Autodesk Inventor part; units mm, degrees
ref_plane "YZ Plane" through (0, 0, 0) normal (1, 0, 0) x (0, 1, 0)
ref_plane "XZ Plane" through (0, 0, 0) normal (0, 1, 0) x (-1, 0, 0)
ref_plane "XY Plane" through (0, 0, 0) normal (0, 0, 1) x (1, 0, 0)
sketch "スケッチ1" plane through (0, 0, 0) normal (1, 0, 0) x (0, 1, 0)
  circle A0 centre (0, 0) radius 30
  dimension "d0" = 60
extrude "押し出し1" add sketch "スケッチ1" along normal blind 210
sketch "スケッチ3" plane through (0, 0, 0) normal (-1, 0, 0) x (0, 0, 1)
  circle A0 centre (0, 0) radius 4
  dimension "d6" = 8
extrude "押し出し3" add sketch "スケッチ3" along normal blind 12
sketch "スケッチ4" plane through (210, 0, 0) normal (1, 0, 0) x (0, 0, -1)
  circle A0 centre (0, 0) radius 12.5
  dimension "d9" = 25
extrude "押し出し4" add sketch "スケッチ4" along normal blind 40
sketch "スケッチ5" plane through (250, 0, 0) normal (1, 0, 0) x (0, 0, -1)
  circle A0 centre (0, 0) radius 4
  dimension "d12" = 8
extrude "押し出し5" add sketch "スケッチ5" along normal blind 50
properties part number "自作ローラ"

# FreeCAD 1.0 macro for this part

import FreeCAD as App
import Part
import Sketcher

V = App.Vector
Q = App.Units.Quantity

doc = App.newDocument("Part")
body = doc.addObject("PartDesign::Body", "Body")

# Sketch on YZ plane
sketch1 = doc.addObject("Sketcher::SketchObject", "Sketch")
body.addObject(sketch1)
sketch1.AttachmentSupport = (doc.YZ_Plane, [""])
sketch1.MapMode = "FlatFace"
sketch1.addGeometry(Part.Circle(V(0, 0, 0), V(0, 0, 1), 30), False)
sketch1.addConstraint([
    Sketcher.Constraint("Coincident", 0, 3, -1, 1),
    Sketcher.Constraint("Diameter", 0, Q("60 mm")),
])
pad1 = doc.addObject("PartDesign::Pad", "Pad")
body.addObject(pad1)
pad1.Profile = sketch1
pad1.Length = 210

# Sketch on YZ plane
sketch2 = doc.addObject("Sketcher::SketchObject", "Sketch001")
body.addObject(sketch2)
sketch2.AttachmentSupport = (doc.YZ_Plane, [""])
sketch2.MapMode = "FlatFace"
sketch2.addGeometry(Part.Circle(V(0, 0, 0), V(0, 0, 1), 4), False)
sketch2.addConstraint([
    Sketcher.Constraint("Coincident", 0, 3, -1, 1),
    Sketcher.Constraint("Diameter", 0, Q("8 mm")),
])
pad2 = doc.addObject("PartDesign::Pad", "Pad001")
body.addObject(pad2)
pad2.Profile = sketch2
pad2.Length = 12
pad2.Reversed = True

# Sketch on YZ plane
sketch3 = doc.addObject("Sketcher::SketchObject", "Sketch002")
body.addObject(sketch3)
sketch3.AttachmentSupport = (doc.YZ_Plane, [""])
sketch3.MapMode = "FlatFace"
sketch3.AttachmentOffset = App.Placement(V(0, 0, 210), App.Rotation())
sketch3.addGeometry(Part.Circle(V(0, 0, 0), V(0, 0, 1), 12), False)
sketch3.addConstraint([
    Sketcher.Constraint("Coincident", 0, 3, -1, 1),
    Sketcher.Constraint("Diameter", 0, Q("25 mm")),
])
pad3 = doc.addObject("PartDesign::Pad", "Pad002")
body.addObject(pad3)
pad3.Profile = sketch3
pad3.Length = 40

# Sketch on YZ plane
sketch4 = doc.addObject("Sketcher::SketchObject", "Sketch003")
body.addObject(sketch4)
sketch4.AttachmentSupport = (doc.YZ_Plane, [""])
sketch4.MapMode = "FlatFace"
sketch4.AttachmentOffset = App.Placement(V(0, 0, 250), App.Rotation())
sketch4.addGeometry(Part.Circle(V(0, 0, 0), V(0, 0, 1), 4), False)
sketch4.addConstraint([
    Sketcher.Constraint("Coincident", 0, 3, -1, 1),
    Sketcher.Constraint("Diameter", 0, Q("8 mm")),
])
pad4 = doc.addObject("PartDesign::Pad", "Pad003")
body.addObject(pad4)
pad4.Profile = sketch4
pad4.Length = 50

doc.recompute()
